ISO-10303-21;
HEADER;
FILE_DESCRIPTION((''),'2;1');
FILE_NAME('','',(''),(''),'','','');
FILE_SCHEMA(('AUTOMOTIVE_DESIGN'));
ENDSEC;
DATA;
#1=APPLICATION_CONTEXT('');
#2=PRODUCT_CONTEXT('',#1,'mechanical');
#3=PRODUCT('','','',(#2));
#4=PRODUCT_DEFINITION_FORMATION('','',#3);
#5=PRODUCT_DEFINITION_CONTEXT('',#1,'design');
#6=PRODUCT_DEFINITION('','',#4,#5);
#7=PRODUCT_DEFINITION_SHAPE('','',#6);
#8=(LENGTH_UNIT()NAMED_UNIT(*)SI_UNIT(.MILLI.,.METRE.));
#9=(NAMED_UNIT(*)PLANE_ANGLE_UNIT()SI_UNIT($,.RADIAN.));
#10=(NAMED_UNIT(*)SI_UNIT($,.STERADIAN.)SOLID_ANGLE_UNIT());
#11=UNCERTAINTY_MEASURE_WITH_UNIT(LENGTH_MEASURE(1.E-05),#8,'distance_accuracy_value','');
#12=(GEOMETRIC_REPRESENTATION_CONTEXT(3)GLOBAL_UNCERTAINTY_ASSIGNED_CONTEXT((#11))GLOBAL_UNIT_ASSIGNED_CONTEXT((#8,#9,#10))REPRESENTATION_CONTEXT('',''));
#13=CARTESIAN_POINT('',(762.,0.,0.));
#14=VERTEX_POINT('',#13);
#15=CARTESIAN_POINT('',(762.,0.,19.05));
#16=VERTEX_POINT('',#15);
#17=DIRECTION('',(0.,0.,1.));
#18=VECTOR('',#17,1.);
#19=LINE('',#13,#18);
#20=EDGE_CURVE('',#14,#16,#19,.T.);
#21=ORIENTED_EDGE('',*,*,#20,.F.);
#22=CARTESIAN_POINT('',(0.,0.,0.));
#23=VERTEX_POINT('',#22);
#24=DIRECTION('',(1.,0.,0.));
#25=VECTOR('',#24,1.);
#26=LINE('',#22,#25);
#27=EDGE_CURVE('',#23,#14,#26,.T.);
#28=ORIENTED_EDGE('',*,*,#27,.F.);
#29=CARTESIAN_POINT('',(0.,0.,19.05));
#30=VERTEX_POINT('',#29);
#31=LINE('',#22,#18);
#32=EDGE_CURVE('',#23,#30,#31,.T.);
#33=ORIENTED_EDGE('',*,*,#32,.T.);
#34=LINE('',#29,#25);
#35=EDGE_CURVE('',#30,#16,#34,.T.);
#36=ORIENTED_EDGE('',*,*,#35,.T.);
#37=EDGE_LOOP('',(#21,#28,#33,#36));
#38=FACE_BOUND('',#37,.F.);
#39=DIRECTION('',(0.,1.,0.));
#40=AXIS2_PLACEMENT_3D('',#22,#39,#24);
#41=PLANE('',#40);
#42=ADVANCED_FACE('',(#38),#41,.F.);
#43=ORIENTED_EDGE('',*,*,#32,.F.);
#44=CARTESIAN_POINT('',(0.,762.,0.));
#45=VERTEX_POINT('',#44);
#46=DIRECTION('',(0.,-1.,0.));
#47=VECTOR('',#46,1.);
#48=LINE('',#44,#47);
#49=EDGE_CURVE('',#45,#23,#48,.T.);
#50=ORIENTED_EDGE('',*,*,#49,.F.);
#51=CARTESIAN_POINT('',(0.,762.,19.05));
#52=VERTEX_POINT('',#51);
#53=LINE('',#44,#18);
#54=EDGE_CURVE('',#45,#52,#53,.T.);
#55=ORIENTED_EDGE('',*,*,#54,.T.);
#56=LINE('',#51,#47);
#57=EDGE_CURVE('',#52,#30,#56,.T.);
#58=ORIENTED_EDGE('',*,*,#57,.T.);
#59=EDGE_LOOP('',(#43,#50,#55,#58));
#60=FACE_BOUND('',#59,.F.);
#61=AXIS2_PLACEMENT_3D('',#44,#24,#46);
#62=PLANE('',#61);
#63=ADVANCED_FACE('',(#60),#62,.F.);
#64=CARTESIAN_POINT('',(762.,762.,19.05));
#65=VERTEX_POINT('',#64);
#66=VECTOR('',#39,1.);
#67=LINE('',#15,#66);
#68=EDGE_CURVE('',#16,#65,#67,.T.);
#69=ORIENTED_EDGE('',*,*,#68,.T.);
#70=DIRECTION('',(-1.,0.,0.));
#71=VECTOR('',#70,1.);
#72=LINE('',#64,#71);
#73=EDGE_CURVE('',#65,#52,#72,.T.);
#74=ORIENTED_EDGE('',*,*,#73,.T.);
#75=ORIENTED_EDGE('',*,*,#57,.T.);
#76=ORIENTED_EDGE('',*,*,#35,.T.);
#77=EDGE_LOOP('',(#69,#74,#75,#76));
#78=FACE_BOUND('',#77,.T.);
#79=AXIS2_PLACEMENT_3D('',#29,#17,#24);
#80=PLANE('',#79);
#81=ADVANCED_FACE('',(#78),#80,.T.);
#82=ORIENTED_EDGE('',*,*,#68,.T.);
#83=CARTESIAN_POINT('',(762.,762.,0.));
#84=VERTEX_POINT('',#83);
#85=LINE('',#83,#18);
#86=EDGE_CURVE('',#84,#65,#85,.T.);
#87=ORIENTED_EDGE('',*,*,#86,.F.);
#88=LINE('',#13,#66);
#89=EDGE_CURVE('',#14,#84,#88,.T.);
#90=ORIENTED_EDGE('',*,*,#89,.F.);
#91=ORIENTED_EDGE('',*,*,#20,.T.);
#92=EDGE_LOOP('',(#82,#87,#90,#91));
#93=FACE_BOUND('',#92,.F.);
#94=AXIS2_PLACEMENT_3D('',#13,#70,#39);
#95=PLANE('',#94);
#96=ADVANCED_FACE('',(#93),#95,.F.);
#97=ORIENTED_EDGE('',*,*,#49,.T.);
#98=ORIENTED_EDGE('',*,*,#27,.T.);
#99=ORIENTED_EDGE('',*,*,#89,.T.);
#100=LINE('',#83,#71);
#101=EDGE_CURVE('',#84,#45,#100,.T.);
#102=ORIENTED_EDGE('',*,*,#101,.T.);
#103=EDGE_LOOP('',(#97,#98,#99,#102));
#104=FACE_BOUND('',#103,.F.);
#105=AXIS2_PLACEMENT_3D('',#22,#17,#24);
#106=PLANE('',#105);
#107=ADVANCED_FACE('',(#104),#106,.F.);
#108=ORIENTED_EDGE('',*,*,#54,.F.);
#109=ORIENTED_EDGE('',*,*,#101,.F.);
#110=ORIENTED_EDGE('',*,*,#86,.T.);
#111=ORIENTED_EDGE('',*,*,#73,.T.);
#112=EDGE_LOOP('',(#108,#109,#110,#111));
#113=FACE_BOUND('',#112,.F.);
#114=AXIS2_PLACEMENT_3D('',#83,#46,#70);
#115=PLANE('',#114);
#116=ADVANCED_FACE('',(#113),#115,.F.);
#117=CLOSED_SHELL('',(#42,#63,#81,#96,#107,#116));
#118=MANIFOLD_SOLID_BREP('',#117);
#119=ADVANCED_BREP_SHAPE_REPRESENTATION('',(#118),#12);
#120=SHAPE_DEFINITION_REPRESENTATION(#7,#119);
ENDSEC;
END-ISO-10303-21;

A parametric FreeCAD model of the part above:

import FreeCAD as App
import Part
import Sketcher

V = App.Vector
Q = App.Units.Quantity

doc = App.newDocument("Part")
body = doc.addObject("PartDesign::Body", "Body")

sketch1 = doc.addObject("Sketcher::SketchObject", "Sketch")
body.addObject(sketch1)
sketch1.AttachmentSupport = (doc.XY_Plane, [""])
sketch1.MapMode = "FlatFace"
sketch1.addGeometry([
    Part.LineSegment(V(0, 762, 0), V(0, 0, 0)),
    Part.LineSegment(V(0, 0, 0), V(762, 0, 0)),
    Part.LineSegment(V(762, 0, 0), V(762, 762, 0)),
    Part.LineSegment(V(762, 762, 0), V(0, 762, 0)),
], False)
sketch1.addConstraint([
    Sketcher.Constraint("Coincident", 0, 2, 1, 1),
    Sketcher.Constraint("Coincident", 1, 2, 2, 1),
    Sketcher.Constraint("Coincident", 2, 2, 3, 1),
    Sketcher.Constraint("Coincident", 3, 2, 0, 1),
    Sketcher.Constraint("Vertical", 0),
    Sketcher.Constraint("Horizontal", 1),
    Sketcher.Constraint("Vertical", 2),
    Sketcher.Constraint("Horizontal", 3),
    Sketcher.Constraint("Coincident", 0, 2, -1, 1),
    Sketcher.Constraint("Equal", 3, 0),
    Sketcher.Constraint("DistanceX", 1, 1, 1, 2, Q("30 in")),
])
pad1 = doc.addObject("PartDesign::Pad", "Pad")
body.addObject(pad1)
pad1.Profile = sketch1
pad1.Length = Q("0.75 in")

doc.recompute()
